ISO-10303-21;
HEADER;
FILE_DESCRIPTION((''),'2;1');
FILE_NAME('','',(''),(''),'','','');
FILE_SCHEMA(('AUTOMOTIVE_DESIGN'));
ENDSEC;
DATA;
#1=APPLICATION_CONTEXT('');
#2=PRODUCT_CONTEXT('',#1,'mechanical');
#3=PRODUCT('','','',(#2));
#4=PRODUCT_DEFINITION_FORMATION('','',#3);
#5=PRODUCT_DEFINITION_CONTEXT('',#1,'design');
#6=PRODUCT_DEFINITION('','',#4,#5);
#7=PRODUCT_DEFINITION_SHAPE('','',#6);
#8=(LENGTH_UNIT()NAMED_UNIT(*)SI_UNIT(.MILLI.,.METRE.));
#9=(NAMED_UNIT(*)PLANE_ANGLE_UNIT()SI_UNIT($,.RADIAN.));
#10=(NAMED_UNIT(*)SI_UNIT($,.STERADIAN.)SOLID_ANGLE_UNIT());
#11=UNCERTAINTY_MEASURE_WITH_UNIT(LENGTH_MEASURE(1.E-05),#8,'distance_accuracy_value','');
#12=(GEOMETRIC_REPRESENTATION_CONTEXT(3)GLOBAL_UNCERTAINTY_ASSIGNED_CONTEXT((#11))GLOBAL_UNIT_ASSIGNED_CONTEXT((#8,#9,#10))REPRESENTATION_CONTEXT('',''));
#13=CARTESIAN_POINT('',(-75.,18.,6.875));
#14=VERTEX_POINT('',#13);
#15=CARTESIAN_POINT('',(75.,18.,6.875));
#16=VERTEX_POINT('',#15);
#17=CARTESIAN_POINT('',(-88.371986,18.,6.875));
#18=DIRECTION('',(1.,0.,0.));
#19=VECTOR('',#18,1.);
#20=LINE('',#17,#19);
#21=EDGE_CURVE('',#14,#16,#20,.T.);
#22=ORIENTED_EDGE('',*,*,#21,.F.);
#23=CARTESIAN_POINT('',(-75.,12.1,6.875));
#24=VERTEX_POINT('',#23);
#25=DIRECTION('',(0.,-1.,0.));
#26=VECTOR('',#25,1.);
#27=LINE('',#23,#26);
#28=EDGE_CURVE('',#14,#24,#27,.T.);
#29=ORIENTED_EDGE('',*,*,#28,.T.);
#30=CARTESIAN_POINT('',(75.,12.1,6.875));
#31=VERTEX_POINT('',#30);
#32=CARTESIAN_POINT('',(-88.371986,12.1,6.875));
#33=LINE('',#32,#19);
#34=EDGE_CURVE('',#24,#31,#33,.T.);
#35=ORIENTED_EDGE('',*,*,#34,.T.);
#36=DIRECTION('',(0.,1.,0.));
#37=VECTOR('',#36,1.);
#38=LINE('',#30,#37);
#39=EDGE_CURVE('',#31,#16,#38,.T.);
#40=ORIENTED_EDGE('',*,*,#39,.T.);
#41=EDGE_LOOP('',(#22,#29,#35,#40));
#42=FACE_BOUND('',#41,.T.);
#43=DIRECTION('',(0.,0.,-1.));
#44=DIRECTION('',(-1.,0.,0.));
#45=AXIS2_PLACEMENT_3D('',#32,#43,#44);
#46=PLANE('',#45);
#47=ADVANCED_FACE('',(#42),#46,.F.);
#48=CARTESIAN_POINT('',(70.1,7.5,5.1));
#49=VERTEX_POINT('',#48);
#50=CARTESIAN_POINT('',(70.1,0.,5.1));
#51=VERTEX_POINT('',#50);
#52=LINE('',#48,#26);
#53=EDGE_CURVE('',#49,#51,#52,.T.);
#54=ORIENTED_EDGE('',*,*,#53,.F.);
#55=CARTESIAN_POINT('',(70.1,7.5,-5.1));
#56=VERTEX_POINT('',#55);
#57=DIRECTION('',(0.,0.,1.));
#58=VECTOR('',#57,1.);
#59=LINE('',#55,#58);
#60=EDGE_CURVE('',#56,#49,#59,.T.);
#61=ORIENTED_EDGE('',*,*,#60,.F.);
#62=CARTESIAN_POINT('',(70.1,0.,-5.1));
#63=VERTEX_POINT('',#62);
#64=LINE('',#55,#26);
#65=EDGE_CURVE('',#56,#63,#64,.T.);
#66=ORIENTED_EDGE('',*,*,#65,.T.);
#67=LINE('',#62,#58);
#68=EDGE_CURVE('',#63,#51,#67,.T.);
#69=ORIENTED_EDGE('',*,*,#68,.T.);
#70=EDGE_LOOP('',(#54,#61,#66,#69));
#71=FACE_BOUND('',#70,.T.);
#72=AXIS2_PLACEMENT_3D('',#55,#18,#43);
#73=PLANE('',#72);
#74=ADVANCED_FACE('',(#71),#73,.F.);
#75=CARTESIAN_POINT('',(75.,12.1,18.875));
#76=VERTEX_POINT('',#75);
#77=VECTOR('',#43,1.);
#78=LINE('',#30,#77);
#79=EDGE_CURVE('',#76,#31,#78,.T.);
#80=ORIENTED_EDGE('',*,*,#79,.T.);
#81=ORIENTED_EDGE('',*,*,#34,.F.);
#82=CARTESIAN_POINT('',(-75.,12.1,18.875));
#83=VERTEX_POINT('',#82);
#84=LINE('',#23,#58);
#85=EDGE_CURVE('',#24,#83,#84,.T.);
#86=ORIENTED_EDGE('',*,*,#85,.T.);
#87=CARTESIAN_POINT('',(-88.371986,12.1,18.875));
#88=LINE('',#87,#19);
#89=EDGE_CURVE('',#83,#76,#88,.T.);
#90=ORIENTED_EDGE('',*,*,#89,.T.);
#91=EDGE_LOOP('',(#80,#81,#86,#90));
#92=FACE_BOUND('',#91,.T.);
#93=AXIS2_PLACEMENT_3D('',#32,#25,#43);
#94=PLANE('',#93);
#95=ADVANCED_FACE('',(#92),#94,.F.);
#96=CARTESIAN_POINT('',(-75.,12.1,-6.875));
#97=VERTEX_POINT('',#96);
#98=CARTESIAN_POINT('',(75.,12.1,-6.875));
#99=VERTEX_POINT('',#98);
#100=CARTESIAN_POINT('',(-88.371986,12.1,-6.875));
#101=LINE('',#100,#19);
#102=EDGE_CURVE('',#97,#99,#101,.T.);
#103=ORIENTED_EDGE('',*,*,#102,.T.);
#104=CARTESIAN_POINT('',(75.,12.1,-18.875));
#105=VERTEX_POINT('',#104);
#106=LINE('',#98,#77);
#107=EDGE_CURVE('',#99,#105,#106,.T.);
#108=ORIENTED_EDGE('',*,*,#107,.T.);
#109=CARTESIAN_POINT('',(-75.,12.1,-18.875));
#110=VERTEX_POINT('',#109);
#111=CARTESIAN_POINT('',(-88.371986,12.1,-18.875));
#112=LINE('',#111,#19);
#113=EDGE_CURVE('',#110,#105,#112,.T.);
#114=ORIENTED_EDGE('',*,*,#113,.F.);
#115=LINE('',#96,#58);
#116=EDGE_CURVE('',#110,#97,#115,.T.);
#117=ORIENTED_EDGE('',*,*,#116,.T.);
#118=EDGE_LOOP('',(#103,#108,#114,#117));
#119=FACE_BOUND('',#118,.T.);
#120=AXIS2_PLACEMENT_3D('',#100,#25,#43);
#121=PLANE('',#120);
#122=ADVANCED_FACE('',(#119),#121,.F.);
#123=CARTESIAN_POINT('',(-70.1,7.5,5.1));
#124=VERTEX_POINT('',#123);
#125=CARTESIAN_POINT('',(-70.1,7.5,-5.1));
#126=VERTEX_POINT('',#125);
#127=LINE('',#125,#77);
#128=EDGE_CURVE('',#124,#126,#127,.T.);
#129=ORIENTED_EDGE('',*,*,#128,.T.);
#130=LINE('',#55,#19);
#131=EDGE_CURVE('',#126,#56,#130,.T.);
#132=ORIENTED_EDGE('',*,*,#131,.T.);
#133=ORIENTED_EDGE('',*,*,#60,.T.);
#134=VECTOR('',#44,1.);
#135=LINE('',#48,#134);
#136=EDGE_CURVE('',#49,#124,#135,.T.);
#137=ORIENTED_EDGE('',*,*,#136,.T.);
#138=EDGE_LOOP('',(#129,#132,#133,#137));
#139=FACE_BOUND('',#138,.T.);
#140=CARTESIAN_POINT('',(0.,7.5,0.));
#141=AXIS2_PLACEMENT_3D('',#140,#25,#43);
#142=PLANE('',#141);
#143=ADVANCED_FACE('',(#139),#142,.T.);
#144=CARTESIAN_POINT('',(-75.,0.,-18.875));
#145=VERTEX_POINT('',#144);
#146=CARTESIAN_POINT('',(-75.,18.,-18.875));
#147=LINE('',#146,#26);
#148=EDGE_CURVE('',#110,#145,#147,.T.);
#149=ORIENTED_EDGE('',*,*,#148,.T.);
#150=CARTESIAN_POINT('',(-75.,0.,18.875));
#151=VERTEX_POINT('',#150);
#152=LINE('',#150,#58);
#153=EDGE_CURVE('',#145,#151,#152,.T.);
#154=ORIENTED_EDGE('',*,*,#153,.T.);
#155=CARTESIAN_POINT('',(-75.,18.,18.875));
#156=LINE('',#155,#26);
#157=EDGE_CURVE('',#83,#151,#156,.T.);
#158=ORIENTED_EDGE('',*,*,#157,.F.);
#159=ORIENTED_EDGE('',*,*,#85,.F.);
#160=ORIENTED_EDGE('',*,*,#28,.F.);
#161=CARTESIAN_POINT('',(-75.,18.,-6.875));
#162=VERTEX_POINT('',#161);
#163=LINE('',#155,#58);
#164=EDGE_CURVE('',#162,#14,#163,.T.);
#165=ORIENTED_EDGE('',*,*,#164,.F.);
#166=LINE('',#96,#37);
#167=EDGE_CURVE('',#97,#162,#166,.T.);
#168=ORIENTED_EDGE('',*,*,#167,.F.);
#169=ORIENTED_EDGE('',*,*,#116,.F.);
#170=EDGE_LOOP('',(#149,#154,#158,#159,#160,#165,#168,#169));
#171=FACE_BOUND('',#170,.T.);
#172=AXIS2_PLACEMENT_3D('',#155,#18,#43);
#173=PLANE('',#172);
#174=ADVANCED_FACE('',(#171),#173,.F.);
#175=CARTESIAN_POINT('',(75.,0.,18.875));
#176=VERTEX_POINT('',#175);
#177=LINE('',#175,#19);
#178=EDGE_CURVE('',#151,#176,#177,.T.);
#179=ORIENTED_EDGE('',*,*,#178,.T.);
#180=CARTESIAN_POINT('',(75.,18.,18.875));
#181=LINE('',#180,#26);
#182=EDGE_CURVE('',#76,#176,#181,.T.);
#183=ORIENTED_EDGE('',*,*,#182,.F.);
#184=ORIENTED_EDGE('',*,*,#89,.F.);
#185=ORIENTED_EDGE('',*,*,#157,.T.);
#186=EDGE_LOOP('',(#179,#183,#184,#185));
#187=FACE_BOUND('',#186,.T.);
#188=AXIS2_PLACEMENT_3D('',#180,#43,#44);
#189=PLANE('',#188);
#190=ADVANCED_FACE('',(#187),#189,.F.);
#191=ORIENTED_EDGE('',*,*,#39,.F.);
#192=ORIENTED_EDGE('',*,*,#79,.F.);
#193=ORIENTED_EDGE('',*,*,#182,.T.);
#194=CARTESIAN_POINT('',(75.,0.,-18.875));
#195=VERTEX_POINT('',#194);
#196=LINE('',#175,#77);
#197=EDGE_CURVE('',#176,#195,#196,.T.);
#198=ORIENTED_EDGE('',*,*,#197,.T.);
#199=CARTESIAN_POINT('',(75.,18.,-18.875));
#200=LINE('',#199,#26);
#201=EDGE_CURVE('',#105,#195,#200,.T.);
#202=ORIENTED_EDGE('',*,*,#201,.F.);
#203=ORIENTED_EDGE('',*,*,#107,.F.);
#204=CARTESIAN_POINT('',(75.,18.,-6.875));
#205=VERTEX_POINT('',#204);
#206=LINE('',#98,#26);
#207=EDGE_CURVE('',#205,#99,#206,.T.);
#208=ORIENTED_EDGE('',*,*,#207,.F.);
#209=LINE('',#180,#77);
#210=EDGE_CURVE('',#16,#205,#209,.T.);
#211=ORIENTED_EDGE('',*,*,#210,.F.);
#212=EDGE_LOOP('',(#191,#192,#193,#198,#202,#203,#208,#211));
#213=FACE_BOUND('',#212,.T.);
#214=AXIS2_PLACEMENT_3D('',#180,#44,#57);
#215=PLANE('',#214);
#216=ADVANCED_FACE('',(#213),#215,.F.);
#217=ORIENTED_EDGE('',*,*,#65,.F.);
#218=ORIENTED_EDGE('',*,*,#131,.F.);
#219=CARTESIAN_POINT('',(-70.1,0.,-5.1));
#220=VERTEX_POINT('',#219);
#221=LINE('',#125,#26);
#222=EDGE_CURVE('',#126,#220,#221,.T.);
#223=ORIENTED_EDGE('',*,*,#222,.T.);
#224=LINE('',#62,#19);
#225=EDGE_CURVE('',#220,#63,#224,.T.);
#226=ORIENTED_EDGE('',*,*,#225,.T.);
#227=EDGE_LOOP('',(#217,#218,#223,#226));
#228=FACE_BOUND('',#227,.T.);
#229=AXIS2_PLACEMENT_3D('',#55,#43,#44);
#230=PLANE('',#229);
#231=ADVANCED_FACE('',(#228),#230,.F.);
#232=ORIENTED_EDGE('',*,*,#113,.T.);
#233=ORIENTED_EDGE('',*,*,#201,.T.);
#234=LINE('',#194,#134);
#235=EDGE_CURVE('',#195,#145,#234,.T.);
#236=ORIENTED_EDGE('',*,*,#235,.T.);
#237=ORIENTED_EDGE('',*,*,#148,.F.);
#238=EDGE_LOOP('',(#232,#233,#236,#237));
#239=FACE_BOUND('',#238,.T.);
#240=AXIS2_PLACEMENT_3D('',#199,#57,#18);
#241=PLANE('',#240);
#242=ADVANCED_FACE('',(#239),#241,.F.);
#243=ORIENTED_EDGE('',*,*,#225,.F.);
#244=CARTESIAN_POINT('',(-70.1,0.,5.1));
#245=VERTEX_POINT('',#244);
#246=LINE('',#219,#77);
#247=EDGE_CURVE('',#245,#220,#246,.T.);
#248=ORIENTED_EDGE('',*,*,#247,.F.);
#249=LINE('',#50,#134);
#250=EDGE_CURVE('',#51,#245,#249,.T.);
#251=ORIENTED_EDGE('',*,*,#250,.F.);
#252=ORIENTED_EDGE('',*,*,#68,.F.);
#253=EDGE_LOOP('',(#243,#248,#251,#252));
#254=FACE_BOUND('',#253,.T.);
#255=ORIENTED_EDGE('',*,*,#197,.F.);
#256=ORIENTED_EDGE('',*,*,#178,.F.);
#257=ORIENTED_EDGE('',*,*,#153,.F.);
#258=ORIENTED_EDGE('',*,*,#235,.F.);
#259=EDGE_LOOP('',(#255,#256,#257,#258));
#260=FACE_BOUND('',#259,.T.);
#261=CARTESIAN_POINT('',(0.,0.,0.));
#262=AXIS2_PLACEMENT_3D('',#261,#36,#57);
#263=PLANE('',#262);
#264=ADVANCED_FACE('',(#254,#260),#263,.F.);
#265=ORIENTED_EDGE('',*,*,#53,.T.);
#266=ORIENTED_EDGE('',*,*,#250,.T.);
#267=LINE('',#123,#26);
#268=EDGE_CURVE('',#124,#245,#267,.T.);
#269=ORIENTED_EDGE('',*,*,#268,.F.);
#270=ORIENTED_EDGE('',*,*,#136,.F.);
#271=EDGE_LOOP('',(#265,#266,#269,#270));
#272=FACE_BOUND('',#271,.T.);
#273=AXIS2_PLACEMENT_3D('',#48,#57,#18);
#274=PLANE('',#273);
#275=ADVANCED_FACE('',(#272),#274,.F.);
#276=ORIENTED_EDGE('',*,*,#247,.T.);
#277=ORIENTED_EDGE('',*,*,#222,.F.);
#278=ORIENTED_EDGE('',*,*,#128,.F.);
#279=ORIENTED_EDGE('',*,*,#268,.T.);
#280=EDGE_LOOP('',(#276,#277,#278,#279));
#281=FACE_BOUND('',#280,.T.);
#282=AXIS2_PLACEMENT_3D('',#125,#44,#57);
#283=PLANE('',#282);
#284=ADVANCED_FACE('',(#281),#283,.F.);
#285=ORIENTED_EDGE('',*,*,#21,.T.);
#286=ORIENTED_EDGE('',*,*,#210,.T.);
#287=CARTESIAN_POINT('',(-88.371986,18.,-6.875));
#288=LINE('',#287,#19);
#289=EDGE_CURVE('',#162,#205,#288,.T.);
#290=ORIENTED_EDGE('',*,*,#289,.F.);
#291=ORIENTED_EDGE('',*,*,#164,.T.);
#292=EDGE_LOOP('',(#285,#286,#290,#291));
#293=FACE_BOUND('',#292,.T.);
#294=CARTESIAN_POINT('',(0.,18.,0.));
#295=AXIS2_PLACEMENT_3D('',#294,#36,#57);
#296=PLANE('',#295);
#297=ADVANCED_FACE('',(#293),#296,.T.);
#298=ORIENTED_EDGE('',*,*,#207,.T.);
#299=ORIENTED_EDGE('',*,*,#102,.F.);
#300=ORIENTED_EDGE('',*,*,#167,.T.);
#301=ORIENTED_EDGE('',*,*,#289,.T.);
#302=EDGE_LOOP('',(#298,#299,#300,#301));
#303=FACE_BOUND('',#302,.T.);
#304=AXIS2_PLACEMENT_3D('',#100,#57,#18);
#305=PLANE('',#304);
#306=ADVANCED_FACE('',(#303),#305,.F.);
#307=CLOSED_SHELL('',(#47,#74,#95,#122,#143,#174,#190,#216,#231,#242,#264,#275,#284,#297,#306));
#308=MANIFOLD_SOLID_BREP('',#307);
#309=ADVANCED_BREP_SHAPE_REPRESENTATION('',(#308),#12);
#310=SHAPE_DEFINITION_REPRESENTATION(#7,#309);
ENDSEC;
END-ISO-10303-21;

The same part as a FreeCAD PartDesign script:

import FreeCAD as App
import Part
import Sketcher
from FreeCAD import Vector
Q = App.Units.Quantity

doc = App.newDocument("Part")
body = doc.addObject("PartDesign::Body", "Body")

# Sketch on XZ plane
sketch1 = body.newObject("Sketcher::SketchObject", "Sketch")
sketch1.AttachmentSupport = (doc.getObject("XZ_Plane"), [""])
sketch1.MapMode = "FlatFace"
sketch1.addGeometry(Part.LineSegment(Vector(-75, -18.875, 0), Vector(-75, 18.875, 0)), False)
sketch1.addGeometry(Part.LineSegment(Vector(-75, 18.875, 0), Vector(75, 18.875, 0)), False)
sketch1.addGeometry(Part.LineSegment(Vector(75, 18.875, 0), Vector(75, -18.875, 0)), False)
sketch1.addGeometry(Part.LineSegment(Vector(75, -18.875, 0), Vector(-75, -18.875, 0)), False)
sketch1.addConstraint(Sketcher.Constraint("Coincident", 0, 2, 1, 1))
sketch1.addConstraint(Sketcher.Constraint("Coincident", 1, 2, 2, 1))
sketch1.addConstraint(Sketcher.Constraint("Coincident", 2, 2, 3, 1))
sketch1.addConstraint(Sketcher.Constraint("Coincident", 3, 2, 0, 1))
sketch1.addConstraint(Sketcher.Constraint("Vertical", 0))
sketch1.addConstraint(Sketcher.Constraint("Horizontal", 1))
sketch1.addConstraint(Sketcher.Constraint("Vertical", 2))
sketch1.addConstraint(Sketcher.Constraint("Horizontal", 3))
sketch1.addConstraint(Sketcher.Constraint("Symmetric", 0, 2, 2, 2, -1, 1))
sketch1.addConstraint(Sketcher.Constraint("DistanceX", 1, 1, 1, 2, Q("150 mm")))
sketch1.addConstraint(Sketcher.Constraint("DistanceY", 0, 1, 0, 2, Q("37.75 mm")))
pad1 = body.newObject("PartDesign::Pad", "Pad")
pad1.Profile = sketch1
pad1.Length = 18
pad1.Reversed = True

# Sketch on YZ plane
sketch2 = body.newObject("Sketcher::SketchObject", "Sketch001")
sketch2.AttachmentSupport = (doc.getObject("YZ_Plane"), [""])
sketch2.MapMode = "FlatFace"
sketch2.AttachmentOffset = App.Placement(Vector(0, 0, 75), App.Rotation())
sketch2.addGeometry(Part.LineSegment(Vector(18, 18.875, 0), Vector(12.1, 18.875, 0)), False)
sketch2.addGeometry(Part.LineSegment(Vector(12.1, 18.875, 0), Vector(12.1, 6.875, 0)), False)
sketch2.addGeometry(Part.LineSegment(Vector(12.1, 6.875, 0), Vector(18, 6.875, 0)), False)
sketch2.addGeometry(Part.LineSegment(Vector(18, 6.875, 0), Vector(18, 18.875, 0)), False)
sketch2.addConstraint(Sketcher.Constraint("Coincident", 0, 2, 1, 1))
sketch2.addConstraint(Sketcher.Constraint("Coincident", 1, 2, 2, 1))
sketch2.addConstraint(Sketcher.Constraint("Coincident", 2, 2, 3, 1))
sketch2.addConstraint(Sketcher.Constraint("Coincident", 3, 2, 0, 1))
sketch2.addConstraint(Sketcher.Constraint("Horizontal", 0))
sketch2.addConstraint(Sketcher.Constraint("Vertical", 1))
sketch2.addConstraint(Sketcher.Constraint("Horizontal", 2))
sketch2.addConstraint(Sketcher.Constraint("Vertical", 3))
sketch2.addConstraint(Sketcher.Constraint("DistanceY", 1, 2, 1, 1, Q("12 mm")))
sketch2.addConstraint(Sketcher.Constraint("DistanceX", 0, 2, 0, 1, Q("5.9 mm")))
sketch2.addConstraint(Sketcher.Constraint("DistanceX", -1, 1, 2, 2, Q("18 mm")))
sketch2.addConstraint(Sketcher.Constraint("DistanceY", -1, 1, 0, 2, Q("18.875 mm")))
pocket1 = body.newObject("PartDesign::Pocket", "Pocket")
pocket1.Profile = sketch2
pocket1.Length = 150

# Sketch on YZ plane
sketch3 = body.newObject("Sketcher::SketchObject", "Sketch002")
sketch3.AttachmentSupport = (doc.getObject("YZ_Plane"), [""])
sketch3.MapMode = "FlatFace"
sketch3.AttachmentOffset = App.Placement(Vector(0, 0, 75), App.Rotation())
sketch3.addGeometry(Part.LineSegment(Vector(18, -6.875, 0), Vector(12.1, -6.875, 0)), False)
sketch3.addGeometry(Part.LineSegment(Vector(12.1, -6.875, 0), Vector(12.1, -18.875, 0)), False)
sketch3.addGeometry(Part.LineSegment(Vector(12.1, -18.875, 0), Vector(18, -18.875, 0)), False)
sketch3.addGeometry(Part.LineSegment(Vector(18, -18.875, 0), Vector(18, -6.875, 0)), False)
sketch3.addConstraint(Sketcher.Constraint("Coincident", 0, 2, 1, 1))
sketch3.addConstraint(Sketcher.Constraint("Coincident", 1, 2, 2, 1))
sketch3.addConstraint(Sketcher.Constraint("Coincident", 2, 2, 3, 1))
sketch3.addConstraint(Sketcher.Constraint("Coincident", 3, 2, 0, 1))
sketch3.addConstraint(Sketcher.Constraint("Horizontal", 0))
sketch3.addConstraint(Sketcher.Constraint("Vertical", 1))
sketch3.addConstraint(Sketcher.Constraint("Horizontal", 2))
sketch3.addConstraint(Sketcher.Constraint("Vertical", 3))
sketch3.addConstraint(Sketcher.Constraint("DistanceY", 1, 2, 1, 1, Q("12 mm")))
sketch3.addConstraint(Sketcher.Constraint("DistanceX", 0, 2, 0, 1, Q("5.9 mm")))
sketch3.addConstraint(Sketcher.Constraint("DistanceX", -1, 1, 2, 2, Q("18 mm")))
sketch3.addConstraint(Sketcher.Constraint("DistanceY", 0, 2, -1, 1, Q("6.875 mm")))
pocket2 = body.newObject("PartDesign::Pocket", "Pocket001")
pocket2.Profile = sketch3
pocket2.Length = 150

# Sketch on XZ plane
sketch4 = body.newObject("Sketcher::SketchObject", "Sketch003")
sketch4.AttachmentSupport = (doc.getObject("XZ_Plane"), [""])
sketch4.MapMode = "FlatFace"
sketch4.addGeometry(Part.LineSegment(Vector(-70.1, 5.1, 0), Vector(-70.1, -5.1, 0)), False)
sketch4.addGeometry(Part.LineSegment(Vector(-70.1, -5.1, 0), Vector(70.1, -5.1, 0)), False)
sketch4.addGeometry(Part.LineSegment(Vector(70.1, -5.1, 0), Vector(70.1, 5.1, 0)), False)
sketch4.addGeometry(Part.LineSegment(Vector(70.1, 5.1, 0), Vector(-70.1, 5.1, 0)), False)
sketch4.addConstraint(Sketcher.Constraint("Coincident", 0, 2, 1, 1))
sketch4.addConstraint(Sketcher.Constraint("Coincident", 1, 2, 2, 1))
sketch4.addConstraint(Sketcher.Constraint("Coincident", 2, 2, 3, 1))
sketch4.addConstraint(Sketcher.Constraint("Coincident", 3, 2, 0, 1))
sketch4.addConstraint(Sketcher.Constraint("Vertical", 0))
sketch4.addConstraint(Sketcher.Constraint("Horizontal", 1))
sketch4.addConstraint(Sketcher.Constraint("Vertical", 2))
sketch4.addConstraint(Sketcher.Constraint("Horizontal", 3))
sketch4.addConstraint(Sketcher.Constraint("Symmetric", 0, 2, 2, 2, -1, 1))
sketch4.addConstraint(Sketcher.Constraint("DistanceX", 1, 1, 1, 2, Q("140.2 mm")))
sketch4.addConstraint(Sketcher.Constraint("DistanceY", 0, 2, 0, 1, Q("10.2 mm")))
pocket3 = body.newObject("PartDesign::Pocket", "Pocket002")
pocket3.Profile = sketch4
pocket3.Length = 7.5

doc.recompute()
